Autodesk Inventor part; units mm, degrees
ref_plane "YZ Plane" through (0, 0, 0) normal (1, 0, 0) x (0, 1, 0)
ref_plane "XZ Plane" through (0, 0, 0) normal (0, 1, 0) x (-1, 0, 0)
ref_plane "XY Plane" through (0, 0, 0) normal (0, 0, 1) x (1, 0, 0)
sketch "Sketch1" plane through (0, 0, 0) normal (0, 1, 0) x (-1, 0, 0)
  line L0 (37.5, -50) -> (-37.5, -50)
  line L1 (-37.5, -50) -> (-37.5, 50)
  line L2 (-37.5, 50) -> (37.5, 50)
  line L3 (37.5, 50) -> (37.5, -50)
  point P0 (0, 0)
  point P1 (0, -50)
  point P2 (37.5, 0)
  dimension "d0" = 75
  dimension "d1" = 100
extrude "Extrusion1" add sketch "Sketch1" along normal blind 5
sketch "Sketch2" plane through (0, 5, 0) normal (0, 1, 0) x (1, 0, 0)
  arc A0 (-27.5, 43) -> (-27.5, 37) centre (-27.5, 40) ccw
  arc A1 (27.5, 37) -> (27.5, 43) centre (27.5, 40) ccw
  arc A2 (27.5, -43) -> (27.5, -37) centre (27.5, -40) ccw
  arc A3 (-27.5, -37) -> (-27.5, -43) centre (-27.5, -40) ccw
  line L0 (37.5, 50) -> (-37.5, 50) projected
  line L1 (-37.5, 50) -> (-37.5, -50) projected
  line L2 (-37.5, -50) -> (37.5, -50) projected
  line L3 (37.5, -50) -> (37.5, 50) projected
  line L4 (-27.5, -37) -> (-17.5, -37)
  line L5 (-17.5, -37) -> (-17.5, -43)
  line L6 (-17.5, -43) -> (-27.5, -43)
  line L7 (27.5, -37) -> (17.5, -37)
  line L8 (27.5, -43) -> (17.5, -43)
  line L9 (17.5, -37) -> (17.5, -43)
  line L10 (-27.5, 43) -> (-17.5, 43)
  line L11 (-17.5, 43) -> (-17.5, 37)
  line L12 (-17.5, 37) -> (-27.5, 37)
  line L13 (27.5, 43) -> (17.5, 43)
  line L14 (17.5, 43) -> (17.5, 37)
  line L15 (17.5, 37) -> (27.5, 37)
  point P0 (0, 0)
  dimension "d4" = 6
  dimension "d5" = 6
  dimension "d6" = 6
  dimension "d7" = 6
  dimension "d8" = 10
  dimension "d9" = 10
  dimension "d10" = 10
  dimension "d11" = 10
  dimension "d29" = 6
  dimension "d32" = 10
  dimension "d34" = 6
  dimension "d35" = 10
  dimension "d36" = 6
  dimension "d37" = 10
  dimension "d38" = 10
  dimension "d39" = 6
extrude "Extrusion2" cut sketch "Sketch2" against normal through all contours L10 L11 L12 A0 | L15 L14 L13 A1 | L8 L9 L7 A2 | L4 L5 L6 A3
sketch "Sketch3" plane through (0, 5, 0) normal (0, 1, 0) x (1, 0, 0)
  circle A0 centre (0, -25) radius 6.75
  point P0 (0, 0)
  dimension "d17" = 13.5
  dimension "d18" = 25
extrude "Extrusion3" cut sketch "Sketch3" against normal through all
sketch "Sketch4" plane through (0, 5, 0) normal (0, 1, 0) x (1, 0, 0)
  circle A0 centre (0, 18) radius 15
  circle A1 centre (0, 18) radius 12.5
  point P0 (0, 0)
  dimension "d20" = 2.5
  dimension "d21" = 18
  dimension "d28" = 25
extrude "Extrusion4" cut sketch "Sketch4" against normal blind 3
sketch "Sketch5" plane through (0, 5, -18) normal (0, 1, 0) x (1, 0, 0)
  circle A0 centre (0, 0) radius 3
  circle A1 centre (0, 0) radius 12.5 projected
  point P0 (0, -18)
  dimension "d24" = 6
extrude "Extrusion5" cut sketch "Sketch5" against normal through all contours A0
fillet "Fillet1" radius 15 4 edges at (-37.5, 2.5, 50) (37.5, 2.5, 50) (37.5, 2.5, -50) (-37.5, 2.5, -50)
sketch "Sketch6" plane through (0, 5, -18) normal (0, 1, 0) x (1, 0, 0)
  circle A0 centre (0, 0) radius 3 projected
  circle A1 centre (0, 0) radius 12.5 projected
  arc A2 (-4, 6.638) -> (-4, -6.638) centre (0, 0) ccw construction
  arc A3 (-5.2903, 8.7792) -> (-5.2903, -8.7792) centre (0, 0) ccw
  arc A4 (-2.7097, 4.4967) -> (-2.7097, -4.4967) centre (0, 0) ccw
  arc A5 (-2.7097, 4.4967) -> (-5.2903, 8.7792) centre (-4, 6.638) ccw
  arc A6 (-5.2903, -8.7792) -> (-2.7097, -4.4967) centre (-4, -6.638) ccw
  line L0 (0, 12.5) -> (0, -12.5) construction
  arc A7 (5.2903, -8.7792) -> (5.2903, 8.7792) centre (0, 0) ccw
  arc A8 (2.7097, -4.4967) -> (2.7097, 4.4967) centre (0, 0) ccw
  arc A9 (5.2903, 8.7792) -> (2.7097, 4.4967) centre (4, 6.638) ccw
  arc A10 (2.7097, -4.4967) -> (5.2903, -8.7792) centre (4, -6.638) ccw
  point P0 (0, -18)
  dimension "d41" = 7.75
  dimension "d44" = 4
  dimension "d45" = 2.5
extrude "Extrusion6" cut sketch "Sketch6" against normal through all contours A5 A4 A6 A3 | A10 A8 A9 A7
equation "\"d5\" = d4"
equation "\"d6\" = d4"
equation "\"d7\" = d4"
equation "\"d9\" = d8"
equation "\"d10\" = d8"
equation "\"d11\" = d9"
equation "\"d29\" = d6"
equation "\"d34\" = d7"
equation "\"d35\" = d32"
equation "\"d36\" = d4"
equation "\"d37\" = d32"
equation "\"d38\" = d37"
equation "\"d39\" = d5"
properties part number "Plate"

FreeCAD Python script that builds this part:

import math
import FreeCAD as App
import Part
import Sketcher


def edges_at(feature, points):
    """Names of the edges that pass closest to the given points."""
    edges = feature.Shape.Edges
    near = lambda p: min(range(len(edges)), key=lambda i: edges[i].distToShape(Part.Vertex(*p))[0])
    return sorted({f"Edge{near(p) + 1}" for p in points})

doc = App.newDocument("Part")
body = doc.addObject("PartDesign::Body", "Body")

# Sketch on XZ plane
sketch1 = doc.addObject("Sketcher::SketchObject", "Sketch")
body.addObject(sketch1)
sketch1.AttachmentSupport = (doc.XZ_Plane, [""])
sketch1.MapMode = "FlatFace"
sketch1.addGeometry(Part.LineSegment(App.Vector(37.5, -50, 0), App.Vector(-37.5, -50, 0)), False)
sketch1.addGeometry(Part.LineSegment(App.Vector(-37.5, -50, 0), App.Vector(-37.5, 50, 0)), False)
sketch1.addGeometry(Part.LineSegment(App.Vector(-37.5, 50, 0), App.Vector(37.5, 50, 0)), False)
sketch1.addGeometry(Part.LineSegment(App.Vector(37.5, 50, 0), App.Vector(37.5, -50, 0)), False)
sketch1.addConstraint(Sketcher.Constraint("Coincident", 0, 2, 1, 1))
sketch1.addConstraint(Sketcher.Constraint("Coincident", 1, 2, 2, 1))
sketch1.addConstraint(Sketcher.Constraint("Coincident", 2, 2, 3, 1))
sketch1.addConstraint(Sketcher.Constraint("Coincident", 3, 2, 0, 1))
sketch1.addConstraint(Sketcher.Constraint("Horizontal", 0))
sketch1.addConstraint(Sketcher.Constraint("Vertical", 1))
sketch1.addConstraint(Sketcher.Constraint("Horizontal", 2))
sketch1.addConstraint(Sketcher.Constraint("Vertical", 3))
sketch1.addConstraint(Sketcher.Constraint("Symmetric", 0, 2, 2, 2, -1, 1))
sketch1.addConstraint(Sketcher.Constraint("DistanceX", 0, 2, 0, 1, 75.0))
sketch1.addConstraint(Sketcher.Constraint("DistanceY", 1, 1, 1, 2, 100.0))
pad1 = doc.addObject("PartDesign::Pad", "Pad")
body.addObject(pad1)
pad1.Profile = sketch1
pad1.Length = 5
pad1.Reversed = True

# Sketch on XZ plane
sketch2 = doc.addObject("Sketcher::SketchObject", "Sketch001")
body.addObject(sketch2)
sketch2.AttachmentSupport = (doc.XZ_Plane, [""])
sketch2.MapMode = "FlatFace"
sketch2.AttachmentOffset = App.Placement(App.Vector(0, 0, -5), App.Rotation())
sketch2.addGeometry(Part.LineSegment(App.Vector(-17.5, -43, 0), App.Vector(-27.5, -43, 0)), False)
sketch2.addGeometry(Part.ArcOfCircle(Part.Circle(App.Vector(-27.5, -40, 0), App.Vector(0, 0, 1), 3), math.radians(90), math.radians(270)), False)
sketch2.addGeometry(Part.LineSegment(App.Vector(-27.5, -37, 0), App.Vector(-17.5, -37, 0)), False)
sketch2.addGeometry(Part.LineSegment(App.Vector(-17.5, -37, 0), App.Vector(-17.5, -43, 0)), False)
sketch2.addGeometry(Part.LineSegment(App.Vector(17.5, -37, 0), App.Vector(27.5, -37, 0)), False)
sketch2.addGeometry(Part.ArcOfCircle(Part.Circle(App.Vector(27.5, -40, 0), App.Vector(0, 0, 1), 3), math.radians(-90), math.radians(90)), False)
sketch2.addGeometry(Part.LineSegment(App.Vector(27.5, -43, 0), App.Vector(17.5, -43, 0)), False)
sketch2.addGeometry(Part.LineSegment(App.Vector(17.5, -43, 0), App.Vector(17.5, -37, 0)), False)
sketch2.addGeometry(Part.LineSegment(App.Vector(17.5, 43, 0), App.Vector(27.5, 43, 0)), False)
sketch2.addGeometry(Part.ArcOfCircle(Part.Circle(App.Vector(27.5, 40, 0), App.Vector(0, 0, 1), 3), math.radians(-90), math.radians(90)), False)
sketch2.addGeometry(Part.LineSegment(App.Vector(27.5, 37, 0), App.Vector(17.5, 37, 0)), False)
sketch2.addGeometry(Part.LineSegment(App.Vector(17.5, 37, 0), App.Vector(17.5, 43, 0)), False)
sketch2.addGeometry(Part.LineSegment(App.Vector(-17.5, 37, 0), App.Vector(-27.5, 37, 0)), False)
sketch2.addGeometry(Part.ArcOfCircle(Part.Circle(App.Vector(-27.5, 40, 0), App.Vector(0, 0, 1), 3), math.radians(90), math.radians(270)), False)
sketch2.addGeometry(Part.LineSegment(App.Vector(-27.5, 43, 0), App.Vector(-17.5, 43, 0)), False)
sketch2.addGeometry(Part.LineSegment(App.Vector(-17.5, 43, 0), App.Vector(-17.5, 37, 0)), False)
sketch2.addConstraint(Sketcher.Constraint("Tangent", 0, 2, 1, 2))
sketch2.addConstraint(Sketcher.Constraint("Tangent", 1, 1, 2, 1))
sketch2.addConstraint(Sketcher.Constraint("Coincident", 2, 2, 3, 1))
sketch2.addConstraint(Sketcher.Constraint("Coincident", 3, 2, 0, 1))
sketch2.addConstraint(Sketcher.Constraint("Tangent", 4, 2, 5, 2))
sketch2.addConstraint(Sketcher.Constraint("Tangent", 5, 1, 6, 1))
sketch2.addConstraint(Sketcher.Constraint("Coincident", 6, 2, 7, 1))
sketch2.addConstraint(Sketcher.Constraint("Coincident", 7, 2, 4, 1))
sketch2.addConstraint(Sketcher.Constraint("Tangent", 8, 2, 9, 2))
sketch2.addConstraint(Sketcher.Constraint("Tangent", 9, 1, 10, 1))
sketch2.addConstraint(Sketcher.Constraint("Coincident", 10, 2, 11, 1))
sketch2.addConstraint(Sketcher.Constraint("Coincident", 11, 2, 8, 1))
sketch2.addConstraint(Sketcher.Constraint("Tangent", 12, 2, 13, 2))
sketch2.addConstraint(Sketcher.Constraint("Tangent", 13, 1, 14, 1))
sketch2.addConstraint(Sketcher.Constraint("Coincident", 14, 2, 15, 1))
sketch2.addConstraint(Sketcher.Constraint("Coincident", 15, 2, 12, 1))
sketch2.addConstraint(Sketcher.Constraint("Horizontal", 0))
sketch2.addConstraint(Sketcher.Constraint("Horizontal", 2))
sketch2.addConstraint(Sketcher.Constraint("Vertical", 3))
sketch2.addConstraint(Sketcher.Constraint("Horizontal", 4))
sketch2.addConstraint(Sketcher.Constraint("Horizontal", 6))
sketch2.addConstraint(Sketcher.Constraint("Vertical", 7))
sketch2.addConstraint(Sketcher.Constraint("Horizontal", 8))
sketch2.addConstraint(Sketcher.Constraint("Horizontal", 10))
sketch2.addConstraint(Sketcher.Constraint("Vertical", 11))
sketch2.addConstraint(Sketcher.Constraint("Horizontal", 12))
sketch2.addConstraint(Sketcher.Constraint("Horizontal", 14))
sketch2.addConstraint(Sketcher.Constraint("Vertical", 15))
sketch2.addConstraint(Sketcher.Constraint("Equal", 1, 5))
sketch2.addConstraint(Sketcher.Constraint("Equal", 5, 9))
sketch2.addConstraint(Sketcher.Constraint("Equal", 9, 13))
sketch2.addConstraint(Sketcher.Constraint("Symmetric", 1, 3, 9, 3, -1, 1))
sketch2.addConstraint(Sketcher.Constraint("Symmetric", 5, 3, 13, 3, -1, 1))
sketch2.addConstraint(Sketcher.Constraint("Symmetric", 1, 3, 5, 3, -2))
sketch2.addConstraint(Sketcher.Constraint("Vertical", 7, 2, 10, 2))
sketch2.addConstraint(Sketcher.Constraint("Vertical", 3, 2, 14, 2))
sketch2.addConstraint(Sketcher.Constraint("Equal", 2, 4))
sketch2.addConstraint(Sketcher.Constraint("Radius", 1, 3.0))
sketch2.addConstraint(Sketcher.Constraint("DistanceX", 0, 2, 0, 1, 10.0))
sketch2.addConstraint(Sketcher.Constraint("DistanceY", 1, 3, -1, 1, 40.0))
sketch2.addConstraint(Sketcher.Constraint("DistanceX", 1, 3, 5, 3, 55.0))
pocket1 = doc.addObject("PartDesign::Pocket", "Pocket")
body.addObject(pocket1)
pocket1.Profile = sketch2
pocket1.Type = "ThroughAll"
pocket1.Reversed = True

# Sketch on XZ plane
sketch3 = doc.addObject("Sketcher::SketchObject", "Sketch002")
body.addObject(sketch3)
sketch3.AttachmentSupport = (doc.XZ_Plane, [""])
sketch3.MapMode = "FlatFace"
sketch3.AttachmentOffset = App.Placement(App.Vector(0, 0, -5), App.Rotation())
sketch3.addGeometry(Part.Circle(App.Vector(0, 25, 0), App.Vector(0, 0, 1), 6.75), False)
sketch3.addConstraint(Sketcher.Constraint("PointOnObject", 0, 3, -2))
sketch3.addConstraint(Sketcher.Constraint("Diameter", 0, 13.5))
sketch3.addConstraint(Sketcher.Constraint("DistanceY", -1, 1, 0, 3, 25.0))
pocket2 = doc.addObject("PartDesign::Pocket", "Pocket001")
body.addObject(pocket2)
pocket2.Profile = sketch3
pocket2.Type = "ThroughAll"
pocket2.Reversed = True

# Sketch on XZ plane
sketch4 = doc.addObject("Sketcher::SketchObject", "Sketch003")
body.addObject(sketch4)
sketch4.AttachmentSupport = (doc.XZ_Plane, [""])
sketch4.MapMode = "FlatFace"
sketch4.AttachmentOffset = App.Placement(App.Vector(0, 0, -5), App.Rotation())
sketch4.addGeometry(Part.Circle(App.Vector(0, -18, 0), App.Vector(0, 0, 1), 15), False)
sketch4.addGeometry(Part.Circle(App.Vector(0, -18, 0), App.Vector(0, 0, 1), 12.5), False)
sketch4.addConstraint(Sketcher.Constraint("Coincident", 1, 3, 0, 3))
sketch4.addConstraint(Sketcher.Constraint("PointOnObject", 0, 3, -2))
sketch4.addConstraint(Sketcher.Constraint("Diameter", 1, 25.0))
sketch4.addConstraint(Sketcher.Constraint("Diameter", 0, 30.0))
sketch4.addConstraint(Sketcher.Constraint("DistanceY", 0, 3, -1, 1, 18.0))
pocket3 = doc.addObject("PartDesign::Pocket", "Pocket002")
body.addObject(pocket3)
pocket3.Profile = sketch4
pocket3.Length = 3
pocket3.Reversed = True

# Sketch on XZ plane
sketch5 = doc.addObject("Sketcher::SketchObject", "Sketch004")
body.addObject(sketch5)
sketch5.AttachmentSupport = (doc.XZ_Plane, [""])
sketch5.MapMode = "FlatFace"
sketch5.AttachmentOffset = App.Placement(App.Vector(0, 0, -5), App.Rotation())
sketch5.addGeometry(Part.Circle(App.Vector(0, -18, 0), App.Vector(0, 0, 1), 3), False)
sketch5.addConstraint(Sketcher.Constraint("PointOnObject", 0, 3, -2))
sketch5.addConstraint(Sketcher.Constraint("Diameter", 0, 6.0))
sketch5.addConstraint(Sketcher.Constraint("DistanceY", 0, 3, -1, 1, 18.0))
pocket4 = doc.addObject("PartDesign::Pocket", "Pocket003")
body.addObject(pocket4)
pocket4.Profile = sketch5
pocket4.Type = "ThroughAll"
pocket4.Reversed = True
doc.recompute()

fillet = doc.addObject("PartDesign::Fillet", "Fillet")
body.addObject(fillet)
fillet.Base = (pocket4, edges_at(pocket4, [
    (-37.5, 2.5, 50),
    (37.5, 2.5, 50),
    (37.5, 2.5, -50),
    (-37.5, 2.5, -50),
]))
fillet.Radius = 15

# Sketch on XZ plane
sketch6 = doc.addObject("Sketcher::SketchObject", "Sketch005")
body.addObject(sketch6)
sketch6.AttachmentSupport = (doc.XZ_Plane, [""])
sketch6.MapMode = "FlatFace"
sketch6.AttachmentOffset = App.Placement(App.Vector(0, 0, -5), App.Rotation())
sketch6.addGeometry(Part.ArcOfCircle(Part.Circle(App.Vector(-4, -24.638, 0), App.Vector(0, 0, 1), 2.500008), math.radians(-121.07342), math.radians(58.927763)), False)
sketch6.addGeometry(Part.ArcOfCircle(Part.Circle(App.Vector(0, -18, 0), App.Vector(0, 0, 1), 10.249957), math.radians(121.072947), math.radians(238.927053)), False)
sketch6.addGeometry(Part.ArcOfCircle(Part.Circle(App.Vector(-4, -11.362, 0), App.Vector(0, 0, 1), 2.499922), math.radians(-58.927763), math.radians(121.07342)), False)
sketch6.addGeometry(Part.ArcOfCircle(Part.Circle(App.Vector(0, -18, 0), App.Vector(0, 0, 1), 5.250027), math.radians(121.07306), math.radians(238.92694)), False)
sketch6.addGeometry(Part.ArcOfCircle(Part.Circle(App.Vector(4, -11.362, 0), App.Vector(0, 0, 1), 2.500008), math.radians(58.92658), math.radians(238.927763)), False)
sketch6.addGeometry(Part.ArcOfCircle(Part.Circle(App.Vector(0, -18, 0), App.Vector(0, 0, 1), 10.249957), math.radians(-58.927053), math.radians(58.927053)), False)
sketch6.addGeometry(Part.ArcOfCircle(Part.Circle(App.Vector(4, -24.638, 0), App.Vector(0, 0, 1), 2.499922), math.radians(121.072237), math.radians(301.07342)), False)
sketch6.addGeometry(Part.ArcOfCircle(Part.Circle(App.Vector(0, -18, 0), App.Vector(0, 0, 1), 5.250027), math.radians(-58.92694), math.radians(58.92694)), False)
sketch6.addConstraint(Sketcher.Constraint("Tangent", 0, 1, 1, 2))
sketch6.addConstraint(Sketcher.Constraint("Tangent", 1, 1, 2, 2))
sketch6.addConstraint(Sketcher.Constraint("Tangent", 2, 1, 3, 1))
sketch6.addConstraint(Sketcher.Constraint("Tangent", 3, 2, 0, 2))
sketch6.addConstraint(Sketcher.Constraint("Tangent", 4, 1, 5, 2))
sketch6.addConstraint(Sketcher.Constraint("Tangent", 5, 1, 6, 2))
sketch6.addConstraint(Sketcher.Constraint("Tangent", 6, 1, 7, 1))
sketch6.addConstraint(Sketcher.Constraint("Tangent", 7, 2, 4, 2))
sketch6.addConstraint(Sketcher.Constraint("Coincident", 3, 3, 1, 3))
sketch6.addConstraint(Sketcher.Constraint("Coincident", 5, 3, 1, 3))
sketch6.addConstraint(Sketcher.Constraint("Coincident", 7, 3, 1, 3))
sketch6.addConstraint(Sketcher.Constraint("Equal", 2, 4))
sketch6.addConstraint(Sketcher.Constraint("Equal", 1, 5))
sketch6.addConstraint(Sketcher.Constraint("Symmetric", 2, 3, 4, 3, -2))
sketch6.addConstraint(Sketcher.Constraint("Horizontal", 0, 3, 6, 3))
sketch6.addConstraint(Sketcher.Constraint("Vertical", 0, 3, 2, 3))
sketch6.addConstraint(Sketcher.Constraint("Radius", 0, 2.5))
sketch6.addConstraint(Sketcher.Constraint("DistanceX", 0, 3, -1, 1, 4.0))
sketch6.addConstraint(Sketcher.Constraint("Radius", 1, 10.25))
sketch6.addConstraint(Sketcher.Constraint("DistanceY", 1, 3, -1, 1, 18.0))
pocket5 = doc.addObject("PartDesign::Pocket", "Pocket004")
body.addObject(pocket5)
pocket5.Profile = sketch6
pocket5.Type = "ThroughAll"
pocket5.Reversed = True

doc.recompute()
